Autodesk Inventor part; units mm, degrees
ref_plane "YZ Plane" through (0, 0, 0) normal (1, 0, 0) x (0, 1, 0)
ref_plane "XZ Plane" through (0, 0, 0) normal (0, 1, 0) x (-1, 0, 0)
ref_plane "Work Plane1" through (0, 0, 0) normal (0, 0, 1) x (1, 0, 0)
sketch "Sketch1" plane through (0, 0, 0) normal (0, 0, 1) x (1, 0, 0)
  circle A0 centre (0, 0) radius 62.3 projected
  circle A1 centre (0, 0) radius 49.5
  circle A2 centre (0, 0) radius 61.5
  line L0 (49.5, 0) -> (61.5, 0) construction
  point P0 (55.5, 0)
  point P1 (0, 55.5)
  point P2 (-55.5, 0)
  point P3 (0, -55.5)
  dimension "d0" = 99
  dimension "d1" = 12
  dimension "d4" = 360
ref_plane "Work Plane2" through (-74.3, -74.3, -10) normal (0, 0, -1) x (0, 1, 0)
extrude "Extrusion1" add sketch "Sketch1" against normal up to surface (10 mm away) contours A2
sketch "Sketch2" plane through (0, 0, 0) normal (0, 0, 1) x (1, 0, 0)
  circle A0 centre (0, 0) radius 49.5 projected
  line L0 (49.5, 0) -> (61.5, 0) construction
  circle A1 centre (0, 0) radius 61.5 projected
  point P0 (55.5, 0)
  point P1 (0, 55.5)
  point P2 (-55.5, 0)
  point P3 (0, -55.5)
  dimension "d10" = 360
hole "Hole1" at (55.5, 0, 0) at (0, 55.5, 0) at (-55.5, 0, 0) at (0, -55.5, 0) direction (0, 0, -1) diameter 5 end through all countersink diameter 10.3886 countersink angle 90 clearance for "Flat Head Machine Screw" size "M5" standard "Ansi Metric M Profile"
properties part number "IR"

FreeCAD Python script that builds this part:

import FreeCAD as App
import Part
import Sketcher
Q = App.Units.Quantity

doc = App.newDocument("Part")
params = doc.addObject("Spreadsheet::Sheet", "Params")
for row, (alias, value) in enumerate([
    ("sketch1_diameter", "99 mm"),
    ("sketch1_diameter2", "123 mm"),
    ("pad1_length", "10 mm"),
    ("sketch2_diameter", "5 mm"),
    ("hole_diameter", "5 mm"),
    ("hole_csink_diameter", "10.3886 mm"),
], start=1):
    params.set(f"A{row}", alias)
    params.set(f"B{row}", "=" + value)
    params.setAlias(f"B{row}", alias)

body = doc.addObject("PartDesign::Body", "Body")

# Sketch on XY plane
sketch1 = doc.addObject("Sketcher::SketchObject", "Sketch")
body.addObject(sketch1)
sketch1.AttachmentSupport = (doc.XY_Plane, [""])
sketch1.MapMode = "FlatFace"
sketch1.addGeometry(Part.Circle(App.Vector(0, 0, 0), App.Vector(0, 0, 1), 62), False)
sketch1.addGeometry(Part.Circle(App.Vector(0, 0, 0), App.Vector(0, 0, 1), 50), False)
sketch1.addConstraint(Sketcher.Constraint("Coincident", 0, 3, -1, 1))
sketch1.addConstraint(Sketcher.Constraint("Coincident", 1, 3, -1, 1))
sketch1.addConstraint(Sketcher.Constraint("Diameter", 1, Q("99 mm")))
sketch1.addConstraint(Sketcher.Constraint("Diameter", 0, Q("123 mm")))
sketch1.setExpression("Constraints[2]", "Params.sketch1_diameter")
sketch1.setExpression("Constraints[3]", "Params.sketch1_diameter2")
pad1 = doc.addObject("PartDesign::Pad", "Pad")
body.addObject(pad1)
pad1.Profile = sketch1
pad1.setExpression("Length", "Params.pad1_length")
pad1.Reversed = True

# Sketch on XY plane
sketch2 = doc.addObject("Sketcher::SketchObject", "Sketch001")
body.addObject(sketch2)
sketch2.AttachmentSupport = (doc.XY_Plane, [""])
sketch2.MapMode = "FlatFace"
sketch2.addGeometry(Part.Circle(App.Vector(55.5, 0, 0), App.Vector(0, 0, 1), 2.5), False)
sketch2.addGeometry(Part.Circle(App.Vector(0, 55.5, 0), App.Vector(0, 0, 1), 2.5), False)
sketch2.addGeometry(Part.Circle(App.Vector(-55.5, 0, 0), App.Vector(0, 0, 1), 2.5), False)
sketch2.addGeometry(Part.Circle(App.Vector(0, -55.5, 0), App.Vector(0, 0, 1), 2.5), False)
sketch2.addConstraint(Sketcher.Constraint("Equal", 0, 1))
sketch2.addConstraint(Sketcher.Constraint("Equal", 1, 2))
sketch2.addConstraint(Sketcher.Constraint("Equal", 2, 3))
sketch2.addConstraint(Sketcher.Constraint("Symmetric", 0, 3, 2, 3, -1, 1))
sketch2.addConstraint(Sketcher.Constraint("Symmetric", 1, 3, 3, 3, -1, 1))
sketch2.addConstraint(Sketcher.Constraint("PointOnObject", 0, 3, -1))
sketch2.addConstraint(Sketcher.Constraint("PointOnObject", 1, 3, -2))
sketch2.addConstraint(Sketcher.Constraint("Diameter", 0, Q("5 mm")))
sketch2.addConstraint(Sketcher.Constraint("DistanceX", 2, 3, 0, 3, Q("111 mm")))
sketch2.addConstraint(Sketcher.Constraint("DistanceY", 3, 3, 1, 3, Q("111 mm")))
sketch2.setExpression("Constraints[7]", "Params.sketch2_diameter")
doc.recompute()
hole = doc.addObject("PartDesign::Hole", "Hole")
body.addObject(hole)
hole.Profile = sketch2
hole.ThreadType = "None"
hole.setExpression("Diameter", "Params.hole_diameter")
hole.DepthType = "ThroughAll"
hole.HoleCutType = "Countersink"
hole.setExpression("HoleCutDiameter", "Params.hole_csink_diameter")
hole.HoleCutCountersinkAngle = 90

doc.recompute()
